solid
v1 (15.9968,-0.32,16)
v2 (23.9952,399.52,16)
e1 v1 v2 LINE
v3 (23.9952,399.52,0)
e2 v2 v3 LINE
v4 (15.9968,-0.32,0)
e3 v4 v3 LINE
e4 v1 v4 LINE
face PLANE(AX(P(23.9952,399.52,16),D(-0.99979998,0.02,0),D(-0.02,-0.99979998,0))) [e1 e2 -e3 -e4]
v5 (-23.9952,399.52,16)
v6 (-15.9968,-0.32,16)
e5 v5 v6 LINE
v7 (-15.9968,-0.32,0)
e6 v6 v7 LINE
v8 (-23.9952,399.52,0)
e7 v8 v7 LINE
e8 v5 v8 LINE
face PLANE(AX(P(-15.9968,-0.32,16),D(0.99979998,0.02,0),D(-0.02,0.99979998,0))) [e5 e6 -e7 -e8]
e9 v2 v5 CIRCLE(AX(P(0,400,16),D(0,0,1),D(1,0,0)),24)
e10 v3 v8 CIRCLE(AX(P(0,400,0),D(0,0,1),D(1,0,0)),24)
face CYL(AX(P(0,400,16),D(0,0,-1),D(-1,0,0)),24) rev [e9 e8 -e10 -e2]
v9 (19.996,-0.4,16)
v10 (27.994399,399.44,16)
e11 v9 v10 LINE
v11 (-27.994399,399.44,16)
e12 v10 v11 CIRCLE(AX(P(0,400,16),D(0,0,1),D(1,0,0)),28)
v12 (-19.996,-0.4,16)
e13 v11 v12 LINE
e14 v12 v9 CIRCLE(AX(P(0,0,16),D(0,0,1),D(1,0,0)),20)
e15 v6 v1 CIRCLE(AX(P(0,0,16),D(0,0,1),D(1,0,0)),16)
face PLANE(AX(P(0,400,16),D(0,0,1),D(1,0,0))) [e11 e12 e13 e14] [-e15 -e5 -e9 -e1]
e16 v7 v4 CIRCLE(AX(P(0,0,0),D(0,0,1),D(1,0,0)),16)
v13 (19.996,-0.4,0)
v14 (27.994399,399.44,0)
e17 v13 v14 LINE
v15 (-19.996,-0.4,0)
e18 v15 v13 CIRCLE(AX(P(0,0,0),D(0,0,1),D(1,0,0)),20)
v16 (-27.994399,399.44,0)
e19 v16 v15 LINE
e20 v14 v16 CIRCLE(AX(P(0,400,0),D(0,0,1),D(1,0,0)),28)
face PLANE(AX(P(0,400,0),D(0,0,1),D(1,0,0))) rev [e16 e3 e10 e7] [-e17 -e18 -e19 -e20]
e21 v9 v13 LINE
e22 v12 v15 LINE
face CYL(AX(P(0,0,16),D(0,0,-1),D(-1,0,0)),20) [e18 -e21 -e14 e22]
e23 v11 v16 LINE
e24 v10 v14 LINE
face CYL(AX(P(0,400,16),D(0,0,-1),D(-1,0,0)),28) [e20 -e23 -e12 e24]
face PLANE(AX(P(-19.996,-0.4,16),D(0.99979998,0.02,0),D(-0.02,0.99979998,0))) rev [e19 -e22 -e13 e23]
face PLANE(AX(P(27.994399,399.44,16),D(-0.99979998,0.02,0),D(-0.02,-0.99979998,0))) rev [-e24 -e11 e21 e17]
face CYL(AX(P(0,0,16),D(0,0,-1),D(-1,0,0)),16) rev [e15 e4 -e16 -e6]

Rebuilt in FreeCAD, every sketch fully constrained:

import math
import FreeCAD as App
import Part
import Sketcher

doc = App.newDocument("Part")
body = doc.addObject("PartDesign::Body", "Body")

sketch1 = body.newObject("Sketcher::SketchObject", "Sketch")
sketch1.AttachmentSupport = (doc.getObject("XY_Plane"), [""])
sketch1.MapMode = "FlatFace"
sketch1.addGeometry([
    Part.LineSegment(App.Vector(-28, 399, 0), App.Vector(-20, 0, 0)),
    Part.ArcOfCircle(Part.Circle(App.Vector(0, 0, 0), App.Vector(0, 0, 1), 20), math.radians(-179), math.radians(-1)),
    Part.LineSegment(App.Vector(20, 0, 0), App.Vector(28, 399, 0)),
    Part.ArcOfCircle(Part.Circle(App.Vector(0, 400, 0), App.Vector(0, 0, 1), 28), math.radians(-1), math.radians(181)),
    Part.LineSegment(App.Vector(-16, 0, 0), App.Vector(-24, 400, 0)),
    Part.ArcOfCircle(Part.Circle(App.Vector(0, 400, 0), App.Vector(0, 0, 1), 24), math.radians(-1), math.radians(181)),
    Part.LineSegment(App.Vector(24, 400, 0), App.Vector(16, 0, 0)),
    Part.ArcOfCircle(Part.Circle(App.Vector(0, 0, 0), App.Vector(0, 0, 1), 16), math.radians(-179), math.radians(-1)),
], False)
sketch1.addConstraint([
    Sketcher.Constraint("Tangent", 0, 2, 1, 1),
    Sketcher.Constraint("Tangent", 1, 2, 2, 1),
    Sketcher.Constraint("Tangent", 2, 2, 3, 1),
    Sketcher.Constraint("Tangent", 3, 2, 0, 1),
    Sketcher.Constraint("Tangent", 4, 2, 5, 2),
    Sketcher.Constraint("Tangent", 5, 1, 6, 1),
    Sketcher.Constraint("Tangent", 6, 2, 7, 2),
    Sketcher.Constraint("Tangent", 7, 1, 4, 1),
    Sketcher.Constraint("Coincident", 1, 3, -1, 1),
    Sketcher.Constraint("Coincident", 7, 3, -1, 1),
    Sketcher.Constraint("Coincident", 5, 3, 3, 3),
    Sketcher.Constraint("PointOnObject", 3, 3, -2),
    Sketcher.Constraint("Parallel", 0, 4),
    Sketcher.Constraint("Radius", 1, 20.0),
    Sketcher.Constraint("Radius", 3, 28.0),
    Sketcher.Constraint("Radius", 5, 24.0),
    Sketcher.Constraint("DistanceY", -1, 1, 3, 3, 400.0),
])
pad1 = body.newObject("PartDesign::Pad", "Pad")
pad1.Profile = sketch1
pad1.Length = 16

doc.recompute()
